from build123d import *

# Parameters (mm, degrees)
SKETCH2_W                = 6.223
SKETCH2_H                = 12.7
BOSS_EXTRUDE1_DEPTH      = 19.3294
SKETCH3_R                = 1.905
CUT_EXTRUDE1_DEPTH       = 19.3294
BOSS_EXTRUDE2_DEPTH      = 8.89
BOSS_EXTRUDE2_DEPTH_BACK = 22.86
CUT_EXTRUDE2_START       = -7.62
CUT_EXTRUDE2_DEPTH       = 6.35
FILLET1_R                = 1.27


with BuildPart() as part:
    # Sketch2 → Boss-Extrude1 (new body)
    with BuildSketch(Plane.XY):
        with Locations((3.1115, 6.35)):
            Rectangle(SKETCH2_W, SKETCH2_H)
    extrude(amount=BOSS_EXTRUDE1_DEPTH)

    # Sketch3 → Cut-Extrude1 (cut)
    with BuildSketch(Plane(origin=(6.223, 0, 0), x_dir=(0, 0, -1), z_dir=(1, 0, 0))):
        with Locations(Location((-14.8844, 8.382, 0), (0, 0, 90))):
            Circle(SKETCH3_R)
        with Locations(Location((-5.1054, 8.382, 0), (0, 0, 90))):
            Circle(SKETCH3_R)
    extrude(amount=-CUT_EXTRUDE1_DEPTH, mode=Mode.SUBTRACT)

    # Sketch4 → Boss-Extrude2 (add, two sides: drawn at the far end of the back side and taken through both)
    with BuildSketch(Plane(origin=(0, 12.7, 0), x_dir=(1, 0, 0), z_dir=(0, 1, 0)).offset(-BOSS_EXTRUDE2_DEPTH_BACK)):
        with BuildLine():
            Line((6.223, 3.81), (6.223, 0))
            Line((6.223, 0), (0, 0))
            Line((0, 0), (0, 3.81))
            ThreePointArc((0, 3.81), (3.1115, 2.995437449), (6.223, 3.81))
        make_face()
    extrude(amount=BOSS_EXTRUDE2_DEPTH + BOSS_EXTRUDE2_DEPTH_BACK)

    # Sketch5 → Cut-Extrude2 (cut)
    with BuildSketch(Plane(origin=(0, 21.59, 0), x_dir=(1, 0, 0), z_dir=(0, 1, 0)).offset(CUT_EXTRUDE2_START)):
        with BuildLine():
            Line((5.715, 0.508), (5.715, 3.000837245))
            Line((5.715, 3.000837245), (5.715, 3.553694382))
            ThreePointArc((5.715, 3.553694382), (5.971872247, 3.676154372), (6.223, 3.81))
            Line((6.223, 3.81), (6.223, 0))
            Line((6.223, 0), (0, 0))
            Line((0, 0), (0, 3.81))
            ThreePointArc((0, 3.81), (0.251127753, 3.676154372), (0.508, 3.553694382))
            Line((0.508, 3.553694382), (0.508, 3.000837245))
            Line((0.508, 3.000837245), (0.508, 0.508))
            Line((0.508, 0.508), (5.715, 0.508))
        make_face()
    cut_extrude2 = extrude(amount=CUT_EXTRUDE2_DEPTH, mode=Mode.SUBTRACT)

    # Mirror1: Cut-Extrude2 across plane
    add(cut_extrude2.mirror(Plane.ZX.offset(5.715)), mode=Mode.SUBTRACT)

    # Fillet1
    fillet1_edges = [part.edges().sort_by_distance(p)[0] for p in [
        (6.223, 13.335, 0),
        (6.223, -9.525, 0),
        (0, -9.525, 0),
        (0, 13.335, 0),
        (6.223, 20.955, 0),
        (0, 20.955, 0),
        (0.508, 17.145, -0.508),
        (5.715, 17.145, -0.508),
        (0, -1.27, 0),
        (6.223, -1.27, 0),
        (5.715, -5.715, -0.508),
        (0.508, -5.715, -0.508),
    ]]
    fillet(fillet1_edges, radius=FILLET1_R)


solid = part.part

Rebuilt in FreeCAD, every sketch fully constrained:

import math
import FreeCAD as App
import Part
import Sketcher

V = App.Vector
Q = App.Units.Quantity


def edges_at(feature, points):
    """Names of the edges that pass closest to the given points."""
    edges = feature.Shape.Edges
    near = lambda p: min(range(len(edges)), key=lambda i: edges[i].distToShape(Part.Vertex(*p))[0])
    return sorted({f"Edge{near(p) + 1}" for p in points})


def add_polygon(sketch, points):
    """Adds a closed chain of lines whose ends are joined by coincident constraints."""
    first, n = sketch.GeometryCount, len(points)
    for a, b in zip(points, points[1:] + points[:1]):
        sketch.addGeometry(Part.LineSegment(App.Vector(*a, 0), App.Vector(*b, 0)), False)
    for i in range(n):
        sketch.addConstraint(Sketcher.Constraint("Coincident", first + i, 2, first + (i + 1) % n, 1))

doc = App.newDocument("Part")
params = doc.addObject("Spreadsheet::Sheet", "Params")
for row, (alias, value) in enumerate([
    ("sketch1_height", "0.5 in"),
    ("sketch1_width", "0.245 in"),
    ("pad1_length", "0.761 in"),
    ("sketch2_diameter", "0.15 in"),
    ("pocket1_length", "0.761 in"),
    ("sketch3_radius", "0.25 in"),
    ("sketch3_height", "0.15 in"),
    ("sketch3_width", "0.245 in"),
    ("pad2_length", "0.35 in"),
    ("pad2_length2", "0.9 in"),
    ("sketch4_radius", "0.25 in"),
    ("sketch4_height", "0.15 in"),
    ("sketch4_width", "0.205 in"),
    ("sketch4_width2", "0.245 in"),
    ("pocket2_length", "0.25 in"),
    ("fillet_radius", "0.05 in"),
], start=1):
    params.set(f"A{row}", alias)
    params.set(f"B{row}", "=" + value)
    params.setAlias(f"B{row}", alias)

body = doc.addObject("PartDesign::Body", "Body")

sketch1 = doc.addObject("Sketcher::SketchObject", "Sketch")
body.addObject(sketch1)
sketch1.AttachmentSupport = (doc.XY_Plane, [""])
sketch1.MapMode = "FlatFace"
add_polygon(sketch1, [(0, 13), (0, 0), (6, 0), (6, 13)])
sketch1.addConstraint([
    Sketcher.Constraint("Vertical", 0),
    Sketcher.Constraint("Horizontal", 1),
    Sketcher.Constraint("Vertical", 2),
    Sketcher.Constraint("Horizontal", 3),
    Sketcher.Constraint("Coincident", 0, 2, -1, 1),
    Sketcher.Constraint("DistanceY", 0, 2, 0, 1, Q("0.5 in")),
    Sketcher.Constraint("DistanceX", 1, 1, 1, 2, Q("0.245 in")),
])
sketch1.setExpression("Constraints[9]", "Params.sketch1_height")
sketch1.setExpression("Constraints[10]", "Params.sketch1_width")
pad1 = doc.addObject("PartDesign::Pad", "Pad")
body.addObject(pad1)
pad1.Profile = sketch1
pad1.setExpression("Length", "Params.pad1_length")

sketch2 = doc.addObject("Sketcher::SketchObject", "Sketch001")
body.addObject(sketch2)
sketch2.AttachmentSupport = (doc.YZ_Plane, [""])
sketch2.MapMode = "FlatFace"
sketch2.AttachmentOffset = App.Placement(V(0, 0, 0.245 * 25.4), App.Rotation())
sketch2.addGeometry([
    Part.Circle(V(8.4, 14.9, 0), V(0, 0, 1), 1.9),
    Part.Circle(V(8.4, 5.1, 0), V(0, 0, 1), 1.9),
], False)
sketch2.addConstraint([
    Sketcher.Constraint("Equal", 0, 1),
    Sketcher.Constraint("Vertical", 0, 3, 1, 3),
    Sketcher.Constraint("Diameter", 0, Q("0.15 in")),
    Sketcher.Constraint("DistanceX", -1, 1, 0, 3, Q("0.33 in")),
    Sketcher.Constraint("DistanceY", -1, 1, 0, 3, Q("0.586 in")),
    Sketcher.Constraint("DistanceY", -1, 1, 1, 3, Q("0.201 in")),
])
sketch2.setExpression("Constraints[2]", "Params.sketch2_diameter")
pocket1 = doc.addObject("PartDesign::Pocket", "Pocket")
body.addObject(pocket1)
pocket1.Profile = sketch2
pocket1.setExpression("Length", "Params.pocket1_length")

sketch3 = doc.addObject("Sketcher::SketchObject", "Sketch002")
body.addObject(sketch3)
sketch3.AttachmentSupport = (doc.XZ_Plane, [""])
sketch3.MapMode = "FlatFace"
sketch3.AttachmentOffset = App.Placement(V(0, 0, -0.5 * 25.4), App.Rotation())
sketch3.addGeometry([
    Part.LineSegment(V(6.2, 0, 0), V(6.2, -3.8, 0)),
    Part.ArcOfCircle(Part.Circle(V(3.1, -9.3, 0), V(0, 0, 1), 6.4), math.radians(61), math.radians(119)),
    Part.LineSegment(V(0, -3.8, 0), V(0, 0, 0)),
    Part.LineSegment(V(0, 0, 0), V(6.2, 0, 0)),
], False)
sketch3.addConstraint([
    Sketcher.Constraint("Coincident", 0, 2, 1, 1),
    Sketcher.Constraint("Coincident", 1, 2, 2, 1),
    Sketcher.Constraint("Coincident", 2, 2, 3, 1),
    Sketcher.Constraint("Coincident", 3, 2, 0, 1),
    Sketcher.Constraint("Vertical", 0),
    Sketcher.Constraint("Vertical", 2),
    Sketcher.Constraint("Horizontal", 3),
    Sketcher.Constraint("Coincident", 2, 2, -1, 1),
    Sketcher.Constraint("Horizontal", 0, 2, 1, 2),
    Sketcher.Constraint("Radius", 1, Q("0.25 in")),
    Sketcher.Constraint("DistanceY", 0, 2, 0, 1, Q("0.15 in")),
    Sketcher.Constraint("DistanceX", 3, 1, 3, 2, Q("0.245 in")),
])
sketch3.setExpression("Constraints[9]", "Params.sketch3_radius")
sketch3.setExpression("Constraints[10]", "Params.sketch3_height")
sketch3.setExpression("Constraints[11]", "Params.sketch3_width")
pad2 = doc.addObject("PartDesign::Pad", "Pad001")
body.addObject(pad2)
pad2.Profile = sketch3
pad2.Type = "TwoLengths"
pad2.setExpression("Length", "Params.pad2_length")
pad2.setExpression("Length2", "Params.pad2_length2")
pad2.Reversed = True

sketch4 = doc.addObject("Sketcher::SketchObject", "Sketch003")
body.addObject(sketch4)
sketch4.AttachmentSupport = (doc.XZ_Plane, [""])
sketch4.MapMode = "FlatFace"
sketch4.AttachmentOffset = App.Placement(V(0, 0, -0.55 * 25.4), App.Rotation())
sketch4.addGeometry([
    Part.LineSegment(V(5.7, -3.6, 0), V(5.7, -0.5, 0)),
    Part.LineSegment(V(5.7, -0.5, 0), V(0.5, -0.5, 0)),
    Part.LineSegment(V(0.5, -0.5, 0), V(0.5, -3.6, 0)),
    Part.ArcOfCircle(Part.Circle(V(3.1, -9.3, 0), V(0, 0, 1), 6.4), math.radians(114.2), math.radians(119.34)),
    Part.LineSegment(V(0, -3.8, 0), V(0, 0, 0)),
    Part.LineSegment(V(0, 0, 0), V(6.2, 0, 0)),
    Part.LineSegment(V(6.2, 0, 0), V(6.2, -3.8, 0)),
    Part.ArcOfCircle(Part.Circle(V(3.1, -9.3, 0), V(0, 0, 1), 6.4), math.radians(60.66), math.radians(65.8)),
], False)
sketch4.addConstraint([
    Sketcher.Constraint("Coincident", 0, 2, 1, 1),
    Sketcher.Constraint("Coincident", 1, 2, 2, 1),
    Sketcher.Constraint("Coincident", 2, 2, 3, 1),
    Sketcher.Constraint("Coincident", 3, 2, 4, 1),
    Sketcher.Constraint("Coincident", 4, 2, 5, 1),
    Sketcher.Constraint("Coincident", 5, 2, 6, 1),
    Sketcher.Constraint("Coincident", 6, 2, 7, 1),
    Sketcher.Constraint("Coincident", 7, 2, 0, 1),
    Sketcher.Constraint("Vertical", 0),
    Sketcher.Constraint("Horizontal", 1),
    Sketcher.Constraint("Vertical", 2),
    Sketcher.Constraint("Vertical", 4),
    Sketcher.Constraint("Horizontal", 5),
    Sketcher.Constraint("Vertical", 6),
    Sketcher.Constraint("Coincident", 4, 2, -1, 1),
    Sketcher.Constraint("Coincident", 7, 3, 3, 3),
    Sketcher.Constraint("Equal", 3, 7),
    Sketcher.Constraint("Horizontal", 3, 2, 6, 2),
    Sketcher.Constraint("Horizontal", 2, 2, 7, 2),
    Sketcher.Constraint("Radius", 3, Q("0.25 in")),
    Sketcher.Constraint("DistanceY", 4, 1, 4, 2, Q("0.15 in")),
    Sketcher.Constraint("DistanceX", 1, 2, 1, 1, Q("0.205 in")),
    Sketcher.Constraint("DistanceX", 5, 1, 5, 2, Q("0.245 in")),
    Sketcher.Constraint("DistanceY", 0, 2, -1, 1, Q("0.02 in")),
])
sketch4.setExpression("Constraints[19]", "Params.sketch4_radius")
sketch4.setExpression("Constraints[20]", "Params.sketch4_height")
sketch4.setExpression("Constraints[21]", "Params.sketch4_width")
sketch4.setExpression("Constraints[22]", "Params.sketch4_width2")
pocket2 = doc.addObject("PartDesign::Pocket", "Pocket001")
body.addObject(pocket2)
pocket2.Profile = sketch4
pocket2.setExpression("Length", "Params.pocket2_length")
doc.recompute()

datumplane = doc.addObject("PartDesign::Plane", "DatumPlane")
body.addObject(datumplane)
datumplane.AttachmentSupport = (doc.XZ_Plane, [""])
datumplane.MapMode = "FlatFace"
datumplane.AttachmentOffset = App.Placement(V(0, 0, -0.225 * 25.4), App.Rotation())
mirrored = doc.addObject("PartDesign::Mirrored", "Mirrored")
body.addObject(mirrored)
mirrored.Originals = [pocket2]
mirrored.MirrorPlane = (datumplane, [""])
body.Tip = mirrored
doc.recompute()

fillet = doc.addObject("PartDesign::Fillet", "Fillet")
body.addObject(fillet)
fillet.Base = (mirrored, edges_at(mirrored, [
    (6.223, 13.335, 0),
    (6.223, -9.525, 0),
    (0, -9.525, 0),
    (0, 13.335, 0),
    (6.223, 20.955, 0),
    (0, 20.955, 0),
    (0.508, 17.145, -0.508),
    (5.715, 17.145, -0.508),
    (0, -1.27, 0),
    (6.223, -1.27, 0),
    (5.715, -5.715, -0.508),
    (0.508, -5.715, -0.508),
]))
fillet.setExpression("Radius", "Params.fillet_radius")

doc.recompute()
